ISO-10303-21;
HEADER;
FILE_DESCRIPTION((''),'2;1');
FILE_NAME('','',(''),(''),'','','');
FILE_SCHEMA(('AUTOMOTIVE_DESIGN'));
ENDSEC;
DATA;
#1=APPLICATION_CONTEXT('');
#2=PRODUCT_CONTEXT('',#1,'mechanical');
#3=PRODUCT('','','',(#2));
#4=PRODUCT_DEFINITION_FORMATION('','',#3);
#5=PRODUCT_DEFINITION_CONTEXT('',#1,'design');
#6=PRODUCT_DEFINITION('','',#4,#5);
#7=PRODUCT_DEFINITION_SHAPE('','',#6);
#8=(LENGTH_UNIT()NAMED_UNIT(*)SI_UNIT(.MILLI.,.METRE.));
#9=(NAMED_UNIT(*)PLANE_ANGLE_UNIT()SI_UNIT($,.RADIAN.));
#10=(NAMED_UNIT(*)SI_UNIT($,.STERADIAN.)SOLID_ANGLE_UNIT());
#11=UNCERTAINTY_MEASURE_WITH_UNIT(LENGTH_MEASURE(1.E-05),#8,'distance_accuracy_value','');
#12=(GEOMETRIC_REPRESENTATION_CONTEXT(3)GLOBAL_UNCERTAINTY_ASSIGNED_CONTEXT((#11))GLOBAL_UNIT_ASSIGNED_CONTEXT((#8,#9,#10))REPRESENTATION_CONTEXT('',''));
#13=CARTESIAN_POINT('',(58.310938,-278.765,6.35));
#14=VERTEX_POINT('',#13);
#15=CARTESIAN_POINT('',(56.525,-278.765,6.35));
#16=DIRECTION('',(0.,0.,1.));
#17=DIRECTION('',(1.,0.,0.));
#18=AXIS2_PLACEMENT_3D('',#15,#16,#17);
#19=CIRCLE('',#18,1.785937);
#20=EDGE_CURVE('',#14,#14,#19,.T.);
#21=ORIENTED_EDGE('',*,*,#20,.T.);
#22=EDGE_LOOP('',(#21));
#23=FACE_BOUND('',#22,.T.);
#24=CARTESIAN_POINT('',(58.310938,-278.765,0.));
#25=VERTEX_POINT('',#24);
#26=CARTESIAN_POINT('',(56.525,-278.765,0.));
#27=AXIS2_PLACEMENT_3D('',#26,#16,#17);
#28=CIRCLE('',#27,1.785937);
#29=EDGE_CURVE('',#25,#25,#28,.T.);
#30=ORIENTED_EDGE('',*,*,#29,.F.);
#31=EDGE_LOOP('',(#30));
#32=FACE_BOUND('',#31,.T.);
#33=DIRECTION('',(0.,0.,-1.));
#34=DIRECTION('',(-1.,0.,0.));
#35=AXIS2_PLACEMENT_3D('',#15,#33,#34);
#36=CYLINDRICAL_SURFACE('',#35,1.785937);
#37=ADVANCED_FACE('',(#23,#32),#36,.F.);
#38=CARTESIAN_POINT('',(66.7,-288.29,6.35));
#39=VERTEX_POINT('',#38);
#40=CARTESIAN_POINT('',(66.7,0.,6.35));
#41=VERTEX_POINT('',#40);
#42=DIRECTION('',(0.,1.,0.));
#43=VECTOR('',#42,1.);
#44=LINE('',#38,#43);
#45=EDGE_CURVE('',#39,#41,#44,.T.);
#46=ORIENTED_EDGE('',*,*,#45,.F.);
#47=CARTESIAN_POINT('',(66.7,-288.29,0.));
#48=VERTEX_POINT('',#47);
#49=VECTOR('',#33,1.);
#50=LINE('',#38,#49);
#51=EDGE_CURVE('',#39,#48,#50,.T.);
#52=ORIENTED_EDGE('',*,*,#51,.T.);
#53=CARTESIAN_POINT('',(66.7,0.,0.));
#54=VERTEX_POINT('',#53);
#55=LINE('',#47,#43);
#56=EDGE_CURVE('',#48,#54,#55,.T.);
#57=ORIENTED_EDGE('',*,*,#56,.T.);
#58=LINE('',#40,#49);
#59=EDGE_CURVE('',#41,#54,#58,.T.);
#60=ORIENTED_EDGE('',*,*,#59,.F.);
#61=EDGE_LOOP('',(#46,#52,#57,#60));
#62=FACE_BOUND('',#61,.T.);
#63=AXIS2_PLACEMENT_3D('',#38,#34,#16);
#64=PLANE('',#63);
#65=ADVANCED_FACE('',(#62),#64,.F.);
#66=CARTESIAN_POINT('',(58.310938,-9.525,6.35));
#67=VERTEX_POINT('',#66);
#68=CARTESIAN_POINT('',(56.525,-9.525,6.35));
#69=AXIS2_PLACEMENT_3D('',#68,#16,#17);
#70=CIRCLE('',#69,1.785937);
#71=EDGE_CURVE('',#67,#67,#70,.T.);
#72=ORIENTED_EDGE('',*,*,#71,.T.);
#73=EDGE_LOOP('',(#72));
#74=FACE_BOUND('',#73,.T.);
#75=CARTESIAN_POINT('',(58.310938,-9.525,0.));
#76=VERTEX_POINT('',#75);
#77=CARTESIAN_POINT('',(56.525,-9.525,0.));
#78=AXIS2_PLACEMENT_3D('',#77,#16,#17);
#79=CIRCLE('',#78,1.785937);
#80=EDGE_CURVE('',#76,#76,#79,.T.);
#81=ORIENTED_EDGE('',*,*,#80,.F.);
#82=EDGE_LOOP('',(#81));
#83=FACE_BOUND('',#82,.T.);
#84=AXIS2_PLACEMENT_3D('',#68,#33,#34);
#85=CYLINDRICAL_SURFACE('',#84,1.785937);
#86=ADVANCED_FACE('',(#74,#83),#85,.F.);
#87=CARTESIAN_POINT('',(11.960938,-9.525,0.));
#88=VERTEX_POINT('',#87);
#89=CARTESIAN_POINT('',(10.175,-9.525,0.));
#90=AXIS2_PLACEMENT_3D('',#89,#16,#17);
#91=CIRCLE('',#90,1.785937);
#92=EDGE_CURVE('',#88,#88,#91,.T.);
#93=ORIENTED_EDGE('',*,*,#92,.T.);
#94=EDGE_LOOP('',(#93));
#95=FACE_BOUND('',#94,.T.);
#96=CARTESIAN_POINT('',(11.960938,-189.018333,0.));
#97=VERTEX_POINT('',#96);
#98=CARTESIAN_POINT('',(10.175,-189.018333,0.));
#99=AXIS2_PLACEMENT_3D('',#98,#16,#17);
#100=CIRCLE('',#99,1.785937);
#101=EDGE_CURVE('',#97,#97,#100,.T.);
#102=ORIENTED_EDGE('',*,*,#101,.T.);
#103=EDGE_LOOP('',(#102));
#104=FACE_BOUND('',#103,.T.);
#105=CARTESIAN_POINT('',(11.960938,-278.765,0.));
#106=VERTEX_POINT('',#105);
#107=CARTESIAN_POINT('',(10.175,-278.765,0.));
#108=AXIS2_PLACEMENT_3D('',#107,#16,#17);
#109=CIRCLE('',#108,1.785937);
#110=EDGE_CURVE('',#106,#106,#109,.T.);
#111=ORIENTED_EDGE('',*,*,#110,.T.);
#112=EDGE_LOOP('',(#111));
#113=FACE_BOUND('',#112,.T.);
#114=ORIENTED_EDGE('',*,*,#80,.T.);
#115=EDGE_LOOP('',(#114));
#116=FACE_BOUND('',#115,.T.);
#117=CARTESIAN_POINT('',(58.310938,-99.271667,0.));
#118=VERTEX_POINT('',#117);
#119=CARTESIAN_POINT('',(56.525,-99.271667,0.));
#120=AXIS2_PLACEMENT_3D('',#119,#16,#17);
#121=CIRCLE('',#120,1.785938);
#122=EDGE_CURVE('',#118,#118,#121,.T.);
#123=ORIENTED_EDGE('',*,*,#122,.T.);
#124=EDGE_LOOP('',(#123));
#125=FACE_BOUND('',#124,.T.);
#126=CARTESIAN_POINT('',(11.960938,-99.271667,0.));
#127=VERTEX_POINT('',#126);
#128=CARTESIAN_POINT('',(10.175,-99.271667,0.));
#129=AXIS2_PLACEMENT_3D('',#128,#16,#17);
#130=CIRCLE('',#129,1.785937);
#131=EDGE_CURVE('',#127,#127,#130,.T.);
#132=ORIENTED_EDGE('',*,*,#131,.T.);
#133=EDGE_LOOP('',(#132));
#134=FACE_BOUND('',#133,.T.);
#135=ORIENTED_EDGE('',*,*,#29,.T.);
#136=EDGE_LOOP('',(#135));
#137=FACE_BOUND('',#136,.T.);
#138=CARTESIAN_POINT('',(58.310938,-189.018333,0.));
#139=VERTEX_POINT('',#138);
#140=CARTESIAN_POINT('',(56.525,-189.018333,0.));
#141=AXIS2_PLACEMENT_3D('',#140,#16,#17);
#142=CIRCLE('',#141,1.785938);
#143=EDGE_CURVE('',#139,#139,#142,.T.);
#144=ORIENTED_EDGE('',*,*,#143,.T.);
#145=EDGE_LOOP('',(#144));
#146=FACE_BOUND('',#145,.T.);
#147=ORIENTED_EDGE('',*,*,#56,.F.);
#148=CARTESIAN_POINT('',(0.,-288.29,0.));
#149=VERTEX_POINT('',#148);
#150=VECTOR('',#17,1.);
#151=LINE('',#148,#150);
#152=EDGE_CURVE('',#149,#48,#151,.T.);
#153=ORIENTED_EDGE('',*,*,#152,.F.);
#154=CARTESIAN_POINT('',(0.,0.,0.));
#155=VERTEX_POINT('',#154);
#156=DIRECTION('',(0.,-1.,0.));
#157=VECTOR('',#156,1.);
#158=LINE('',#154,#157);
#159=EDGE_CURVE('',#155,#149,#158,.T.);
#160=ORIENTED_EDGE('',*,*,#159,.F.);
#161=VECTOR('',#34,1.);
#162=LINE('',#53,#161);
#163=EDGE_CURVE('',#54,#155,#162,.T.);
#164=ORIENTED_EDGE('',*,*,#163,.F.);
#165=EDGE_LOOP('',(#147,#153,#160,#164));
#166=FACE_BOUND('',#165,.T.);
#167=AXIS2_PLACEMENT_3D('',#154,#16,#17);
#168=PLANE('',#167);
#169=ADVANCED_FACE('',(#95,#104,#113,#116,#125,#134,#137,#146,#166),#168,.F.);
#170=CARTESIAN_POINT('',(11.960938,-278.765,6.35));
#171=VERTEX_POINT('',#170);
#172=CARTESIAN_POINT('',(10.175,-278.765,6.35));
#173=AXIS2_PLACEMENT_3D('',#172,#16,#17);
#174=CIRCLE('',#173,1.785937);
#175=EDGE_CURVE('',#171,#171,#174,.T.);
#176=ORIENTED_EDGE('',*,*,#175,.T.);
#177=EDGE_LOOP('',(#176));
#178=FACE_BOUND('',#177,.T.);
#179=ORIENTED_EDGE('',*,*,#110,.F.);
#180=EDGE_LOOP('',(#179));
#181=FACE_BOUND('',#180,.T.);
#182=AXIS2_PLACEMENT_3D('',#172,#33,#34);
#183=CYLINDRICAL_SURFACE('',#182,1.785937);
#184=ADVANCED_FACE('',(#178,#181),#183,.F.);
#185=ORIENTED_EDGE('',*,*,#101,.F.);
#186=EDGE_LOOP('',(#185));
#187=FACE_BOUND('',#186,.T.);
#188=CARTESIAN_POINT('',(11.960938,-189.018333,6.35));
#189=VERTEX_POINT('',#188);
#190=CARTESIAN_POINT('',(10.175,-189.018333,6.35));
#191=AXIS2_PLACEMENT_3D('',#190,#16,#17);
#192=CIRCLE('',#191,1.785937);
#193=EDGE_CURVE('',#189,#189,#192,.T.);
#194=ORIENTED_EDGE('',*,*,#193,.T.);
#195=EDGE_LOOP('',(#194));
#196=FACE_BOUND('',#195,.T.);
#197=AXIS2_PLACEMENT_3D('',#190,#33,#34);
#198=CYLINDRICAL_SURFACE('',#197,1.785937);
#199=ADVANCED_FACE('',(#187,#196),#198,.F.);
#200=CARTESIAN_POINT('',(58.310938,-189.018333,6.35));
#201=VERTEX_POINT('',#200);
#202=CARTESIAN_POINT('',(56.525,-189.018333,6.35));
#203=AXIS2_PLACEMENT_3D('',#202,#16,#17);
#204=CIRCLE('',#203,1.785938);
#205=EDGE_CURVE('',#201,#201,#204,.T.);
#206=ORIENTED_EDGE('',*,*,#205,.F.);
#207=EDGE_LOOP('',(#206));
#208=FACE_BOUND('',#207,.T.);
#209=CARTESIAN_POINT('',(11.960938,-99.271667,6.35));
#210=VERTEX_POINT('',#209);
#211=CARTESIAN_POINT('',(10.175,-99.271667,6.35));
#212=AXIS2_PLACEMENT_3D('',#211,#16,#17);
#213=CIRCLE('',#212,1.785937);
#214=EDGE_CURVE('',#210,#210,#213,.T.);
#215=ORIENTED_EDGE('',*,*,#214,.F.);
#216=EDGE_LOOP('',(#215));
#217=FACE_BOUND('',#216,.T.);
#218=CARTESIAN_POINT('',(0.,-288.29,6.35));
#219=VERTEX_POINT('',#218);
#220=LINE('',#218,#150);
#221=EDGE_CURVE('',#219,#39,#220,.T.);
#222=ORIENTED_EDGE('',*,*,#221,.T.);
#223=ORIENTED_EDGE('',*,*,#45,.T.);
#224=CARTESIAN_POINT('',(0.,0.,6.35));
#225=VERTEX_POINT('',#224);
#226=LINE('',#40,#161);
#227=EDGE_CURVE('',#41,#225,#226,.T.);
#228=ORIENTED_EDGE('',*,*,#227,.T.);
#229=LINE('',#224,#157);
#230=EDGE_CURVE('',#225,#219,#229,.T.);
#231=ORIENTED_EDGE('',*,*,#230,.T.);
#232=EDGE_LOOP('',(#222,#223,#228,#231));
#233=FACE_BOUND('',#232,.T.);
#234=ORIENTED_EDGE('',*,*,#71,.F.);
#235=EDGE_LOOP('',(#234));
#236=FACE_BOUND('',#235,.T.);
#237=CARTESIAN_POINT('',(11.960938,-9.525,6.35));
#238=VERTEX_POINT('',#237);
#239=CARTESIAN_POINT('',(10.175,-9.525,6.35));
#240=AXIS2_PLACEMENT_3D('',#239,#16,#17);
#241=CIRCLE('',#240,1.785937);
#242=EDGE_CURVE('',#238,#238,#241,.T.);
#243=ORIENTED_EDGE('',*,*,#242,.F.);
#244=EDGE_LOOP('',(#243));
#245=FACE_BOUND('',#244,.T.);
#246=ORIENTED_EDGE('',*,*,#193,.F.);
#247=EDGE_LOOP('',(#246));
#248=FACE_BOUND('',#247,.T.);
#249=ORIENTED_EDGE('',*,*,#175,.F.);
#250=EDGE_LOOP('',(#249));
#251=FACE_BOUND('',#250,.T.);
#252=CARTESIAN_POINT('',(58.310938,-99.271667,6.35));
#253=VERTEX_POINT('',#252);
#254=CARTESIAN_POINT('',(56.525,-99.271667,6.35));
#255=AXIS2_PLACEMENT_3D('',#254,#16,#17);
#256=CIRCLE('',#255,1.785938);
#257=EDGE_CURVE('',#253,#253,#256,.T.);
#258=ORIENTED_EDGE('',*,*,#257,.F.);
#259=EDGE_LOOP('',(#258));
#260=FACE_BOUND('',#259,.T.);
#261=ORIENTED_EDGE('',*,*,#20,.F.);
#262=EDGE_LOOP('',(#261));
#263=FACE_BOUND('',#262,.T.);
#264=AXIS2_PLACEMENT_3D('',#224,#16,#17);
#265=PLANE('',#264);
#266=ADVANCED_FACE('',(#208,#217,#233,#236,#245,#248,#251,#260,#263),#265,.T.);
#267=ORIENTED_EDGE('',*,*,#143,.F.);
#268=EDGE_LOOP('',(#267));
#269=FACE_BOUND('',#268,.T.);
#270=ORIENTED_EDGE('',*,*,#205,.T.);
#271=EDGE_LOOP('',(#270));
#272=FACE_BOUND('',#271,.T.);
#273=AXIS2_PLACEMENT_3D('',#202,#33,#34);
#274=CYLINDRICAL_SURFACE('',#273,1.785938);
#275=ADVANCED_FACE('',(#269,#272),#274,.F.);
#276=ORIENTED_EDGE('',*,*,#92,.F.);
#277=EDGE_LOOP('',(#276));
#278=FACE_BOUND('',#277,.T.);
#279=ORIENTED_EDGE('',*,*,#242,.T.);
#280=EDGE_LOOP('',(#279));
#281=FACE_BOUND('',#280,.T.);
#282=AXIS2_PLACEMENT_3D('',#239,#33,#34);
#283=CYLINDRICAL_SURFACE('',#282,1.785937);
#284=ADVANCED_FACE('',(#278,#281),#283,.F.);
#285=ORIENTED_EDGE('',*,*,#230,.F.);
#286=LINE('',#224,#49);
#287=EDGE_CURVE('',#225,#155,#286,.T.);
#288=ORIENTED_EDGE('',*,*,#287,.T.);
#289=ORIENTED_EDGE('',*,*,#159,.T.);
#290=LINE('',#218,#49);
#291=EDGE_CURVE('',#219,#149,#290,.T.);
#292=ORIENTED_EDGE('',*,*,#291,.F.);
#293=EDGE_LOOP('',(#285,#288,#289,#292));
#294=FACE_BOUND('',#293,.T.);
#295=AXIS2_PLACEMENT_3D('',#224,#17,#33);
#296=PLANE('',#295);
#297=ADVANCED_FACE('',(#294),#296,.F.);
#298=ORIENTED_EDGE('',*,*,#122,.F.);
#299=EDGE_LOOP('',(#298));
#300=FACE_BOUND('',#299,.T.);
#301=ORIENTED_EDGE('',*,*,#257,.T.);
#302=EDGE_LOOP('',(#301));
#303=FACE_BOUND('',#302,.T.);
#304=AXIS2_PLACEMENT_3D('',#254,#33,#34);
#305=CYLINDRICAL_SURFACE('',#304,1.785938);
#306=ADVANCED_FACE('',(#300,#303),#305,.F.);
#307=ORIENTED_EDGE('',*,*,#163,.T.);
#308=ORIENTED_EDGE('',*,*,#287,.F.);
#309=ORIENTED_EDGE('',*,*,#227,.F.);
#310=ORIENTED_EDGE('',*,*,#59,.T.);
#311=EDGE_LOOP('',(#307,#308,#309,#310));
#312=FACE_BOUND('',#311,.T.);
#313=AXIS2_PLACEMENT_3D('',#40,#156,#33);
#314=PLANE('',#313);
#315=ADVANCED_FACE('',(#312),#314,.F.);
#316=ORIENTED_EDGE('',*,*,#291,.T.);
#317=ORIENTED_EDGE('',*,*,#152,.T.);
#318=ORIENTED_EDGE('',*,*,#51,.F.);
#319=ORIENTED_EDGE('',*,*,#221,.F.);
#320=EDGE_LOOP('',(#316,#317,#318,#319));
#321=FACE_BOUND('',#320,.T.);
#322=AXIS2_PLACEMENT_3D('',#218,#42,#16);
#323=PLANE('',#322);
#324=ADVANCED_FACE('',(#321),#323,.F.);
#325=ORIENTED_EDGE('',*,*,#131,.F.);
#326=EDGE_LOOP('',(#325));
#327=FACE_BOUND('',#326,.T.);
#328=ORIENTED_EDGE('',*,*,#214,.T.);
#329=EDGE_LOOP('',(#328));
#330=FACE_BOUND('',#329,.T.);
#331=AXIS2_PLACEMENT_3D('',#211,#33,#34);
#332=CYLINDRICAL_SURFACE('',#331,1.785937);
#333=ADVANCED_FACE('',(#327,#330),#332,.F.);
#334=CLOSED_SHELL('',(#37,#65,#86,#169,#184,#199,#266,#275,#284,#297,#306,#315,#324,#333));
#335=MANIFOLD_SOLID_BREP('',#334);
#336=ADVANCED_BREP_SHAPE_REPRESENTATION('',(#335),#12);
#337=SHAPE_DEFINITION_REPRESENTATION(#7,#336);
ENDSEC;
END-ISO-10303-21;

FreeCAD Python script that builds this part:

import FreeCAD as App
import Part
import Sketcher
from FreeCAD import Vector
Q = App.Units.Quantity


def add_polygon(sketch, points):
    """Adds a closed chain of lines whose ends are joined by coincident constraints."""
    first, n = sketch.GeometryCount, len(points)
    for a, b in zip(points, points[1:] + points[:1]):
        sketch.addGeometry(Part.LineSegment(App.Vector(*a, 0), App.Vector(*b, 0)), False)
    for i in range(n):
        sketch.addConstraint(Sketcher.Constraint("Coincident", first + i, 2, first + (i + 1) % n, 1))

doc = App.newDocument("Part")
body = doc.addObject("PartDesign::Body", "Body")

# Sketch on XY plane
sketch1 = body.newObject("Sketcher::SketchObject", "Sketch")
sketch1.AttachmentSupport = (doc.getObject("XY_Plane"), [""])
sketch1.MapMode = "FlatFace"
add_polygon(sketch1, [(0, 0), (0, -288.3), (66.7, -288.3), (66.7, 0)])  # lines 0-3
sketch1.addGeometry(Part.Circle(Vector(10.2, -278.8, 0), Vector(0, 0, 1), 1.8), False)  # 4
sketch1.addGeometry(Part.Circle(Vector(10.2, -189, 0), Vector(0, 0, 1), 1.8), False)  # 5
sketch1.addGeometry(Part.Circle(Vector(56.5, -278.8, 0), Vector(0, 0, 1), 1.8), False)  # 6
sketch1.addGeometry(Part.Circle(Vector(56.5, -189, 0), Vector(0, 0, 1), 1.8), False)  # 7
sketch1.addGeometry(Part.Circle(Vector(10.2, -99.3, 0), Vector(0, 0, 1), 1.8), False)  # 8
sketch1.addGeometry(Part.Circle(Vector(10.2, -9.5, 0), Vector(0, 0, 1), 1.8), False)  # 9
sketch1.addGeometry(Part.Circle(Vector(56.5, -99.3, 0), Vector(0, 0, 1), 1.8), False)  # 10
sketch1.addGeometry(Part.Circle(Vector(56.5, -9.5, 0), Vector(0, 0, 1), 1.8), False)  # 11
sketch1.addConstraint([
    Sketcher.Constraint("Vertical", 0),
    Sketcher.Constraint("Horizontal", 1),
    Sketcher.Constraint("Vertical", 2),
    Sketcher.Constraint("Horizontal", 3),
    Sketcher.Constraint("Coincident", 3, 2, -1, 1),
    Sketcher.Constraint("Equal", 4, 5),
    Sketcher.Constraint("Equal", 5, 6),
    Sketcher.Constraint("Equal", 6, 7),
    Sketcher.Constraint("Equal", 7, 8),
    Sketcher.Constraint("Equal", 8, 9),
    Sketcher.Constraint("Equal", 9, 10),
    Sketcher.Constraint("Equal", 10, 11),
    Sketcher.Constraint("Horizontal", 4, 3, 6, 3),
    Sketcher.Constraint("Horizontal", 5, 3, 7, 3),
    Sketcher.Constraint("Horizontal", 8, 3, 10, 3),
    Sketcher.Constraint("Horizontal", 9, 3, 11, 3),
    Sketcher.Constraint("Vertical", 4, 3, 5, 3),
    Sketcher.Constraint("Vertical", 6, 3, 7, 3),
    Sketcher.Constraint("Vertical", 5, 3, 8, 3),
    Sketcher.Constraint("Vertical", 8, 3, 9, 3),
    Sketcher.Constraint("Vertical", 7, 3, 10, 3),
    Sketcher.Constraint("Vertical", 10, 3, 11, 3),
    Sketcher.Constraint("Diameter", 4, Q("0.140625 in")),
    Sketcher.Constraint("DistanceY", 0, 2, 0, 1, Q("11.35 in")),
    Sketcher.Constraint("DistanceY", 4, 3, 9, 3, Q("10.6 in")),
    Sketcher.Constraint("DistanceY", 4, 3, -1, 1, Q("10.975 in")),
    Sketcher.Constraint("DistanceX", 1, 1, 1, 2, 66.7),
    Sketcher.Constraint("DistanceX", -1, 1, 4, 3, 10.175),
    Sketcher.Constraint("DistanceX", -1, 1, 6, 3, 56.525),
    Sketcher.Constraint("DistanceY", 5, 3, -1, 1, 189.018333),
    Sketcher.Constraint("DistanceY", 8, 3, -1, 1, 99.271667),
])
pad1 = body.newObject("PartDesign::Pad", "Pad")
pad1.Profile = sketch1
pad1.Length = Q("0.25 in")

doc.recompute()
